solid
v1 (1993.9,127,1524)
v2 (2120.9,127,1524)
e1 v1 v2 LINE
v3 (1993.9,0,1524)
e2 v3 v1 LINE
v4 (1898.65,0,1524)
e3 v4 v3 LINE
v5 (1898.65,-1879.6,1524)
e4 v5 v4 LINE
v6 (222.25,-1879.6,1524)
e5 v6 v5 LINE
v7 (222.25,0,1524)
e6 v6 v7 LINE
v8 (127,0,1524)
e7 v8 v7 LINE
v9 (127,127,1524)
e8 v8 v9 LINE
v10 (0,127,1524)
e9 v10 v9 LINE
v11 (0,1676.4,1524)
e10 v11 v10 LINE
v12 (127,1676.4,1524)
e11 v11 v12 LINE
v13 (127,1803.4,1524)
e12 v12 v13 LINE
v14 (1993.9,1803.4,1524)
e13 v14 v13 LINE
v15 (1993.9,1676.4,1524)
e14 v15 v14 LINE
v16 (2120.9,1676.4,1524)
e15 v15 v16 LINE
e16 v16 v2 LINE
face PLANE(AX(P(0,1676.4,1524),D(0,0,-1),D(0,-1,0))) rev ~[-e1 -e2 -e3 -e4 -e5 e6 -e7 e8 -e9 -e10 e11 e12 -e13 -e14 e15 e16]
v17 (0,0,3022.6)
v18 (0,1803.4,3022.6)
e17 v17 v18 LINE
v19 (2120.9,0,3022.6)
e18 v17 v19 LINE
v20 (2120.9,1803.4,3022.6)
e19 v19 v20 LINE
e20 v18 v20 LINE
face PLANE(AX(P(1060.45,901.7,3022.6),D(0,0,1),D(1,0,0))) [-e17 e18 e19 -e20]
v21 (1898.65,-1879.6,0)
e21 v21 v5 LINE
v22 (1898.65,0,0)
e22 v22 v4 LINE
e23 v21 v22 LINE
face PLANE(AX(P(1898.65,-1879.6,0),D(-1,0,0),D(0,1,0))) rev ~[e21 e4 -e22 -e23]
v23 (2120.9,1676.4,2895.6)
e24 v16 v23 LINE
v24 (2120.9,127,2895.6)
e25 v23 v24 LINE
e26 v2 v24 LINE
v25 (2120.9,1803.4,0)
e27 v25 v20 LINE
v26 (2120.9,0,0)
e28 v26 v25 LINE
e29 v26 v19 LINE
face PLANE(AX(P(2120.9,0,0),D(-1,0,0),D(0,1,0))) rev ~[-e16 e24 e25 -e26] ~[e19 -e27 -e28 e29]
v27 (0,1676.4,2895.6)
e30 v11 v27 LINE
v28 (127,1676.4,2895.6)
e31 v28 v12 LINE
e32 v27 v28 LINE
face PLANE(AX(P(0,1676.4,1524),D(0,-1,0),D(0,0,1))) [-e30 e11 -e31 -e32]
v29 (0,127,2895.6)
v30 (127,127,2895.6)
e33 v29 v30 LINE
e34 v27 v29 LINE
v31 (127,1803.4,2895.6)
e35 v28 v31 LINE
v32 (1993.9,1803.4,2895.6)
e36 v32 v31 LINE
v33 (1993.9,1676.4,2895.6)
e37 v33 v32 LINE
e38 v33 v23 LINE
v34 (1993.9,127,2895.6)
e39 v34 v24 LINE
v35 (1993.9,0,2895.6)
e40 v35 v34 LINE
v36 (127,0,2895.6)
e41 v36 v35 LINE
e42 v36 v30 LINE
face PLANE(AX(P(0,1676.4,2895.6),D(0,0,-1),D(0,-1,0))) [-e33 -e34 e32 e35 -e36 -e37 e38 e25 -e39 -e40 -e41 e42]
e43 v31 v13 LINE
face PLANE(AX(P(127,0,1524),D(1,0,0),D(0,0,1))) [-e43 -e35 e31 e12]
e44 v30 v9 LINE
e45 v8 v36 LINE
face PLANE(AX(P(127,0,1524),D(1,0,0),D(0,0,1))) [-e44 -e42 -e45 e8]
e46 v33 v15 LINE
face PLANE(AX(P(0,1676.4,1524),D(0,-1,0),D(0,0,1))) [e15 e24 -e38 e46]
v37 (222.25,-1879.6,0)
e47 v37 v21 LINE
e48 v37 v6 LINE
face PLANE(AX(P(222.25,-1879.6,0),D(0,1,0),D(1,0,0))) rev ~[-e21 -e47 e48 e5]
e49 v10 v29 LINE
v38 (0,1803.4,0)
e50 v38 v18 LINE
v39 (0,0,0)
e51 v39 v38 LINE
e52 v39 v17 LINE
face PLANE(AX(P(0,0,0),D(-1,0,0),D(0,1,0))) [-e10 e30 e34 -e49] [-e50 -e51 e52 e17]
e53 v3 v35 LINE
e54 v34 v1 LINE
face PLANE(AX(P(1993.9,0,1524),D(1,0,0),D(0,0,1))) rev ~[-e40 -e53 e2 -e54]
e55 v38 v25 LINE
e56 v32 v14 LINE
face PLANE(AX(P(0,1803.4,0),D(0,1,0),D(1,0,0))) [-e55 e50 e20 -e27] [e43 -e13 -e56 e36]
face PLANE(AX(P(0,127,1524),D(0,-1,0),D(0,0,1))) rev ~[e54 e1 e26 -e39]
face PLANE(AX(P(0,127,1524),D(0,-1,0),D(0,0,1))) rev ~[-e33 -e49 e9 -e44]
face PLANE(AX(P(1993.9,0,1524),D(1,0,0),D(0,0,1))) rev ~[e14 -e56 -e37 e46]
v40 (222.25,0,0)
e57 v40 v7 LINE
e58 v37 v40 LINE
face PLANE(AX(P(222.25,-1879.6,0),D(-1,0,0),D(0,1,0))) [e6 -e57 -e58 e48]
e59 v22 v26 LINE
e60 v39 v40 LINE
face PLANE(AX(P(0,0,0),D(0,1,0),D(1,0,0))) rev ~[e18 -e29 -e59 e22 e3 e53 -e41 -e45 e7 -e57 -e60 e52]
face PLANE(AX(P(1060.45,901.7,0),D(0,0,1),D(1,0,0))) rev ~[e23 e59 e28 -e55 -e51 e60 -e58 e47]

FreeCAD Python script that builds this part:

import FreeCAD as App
import Part
import Sketcher
from FreeCAD import Vector
Q = App.Units.Quantity

doc = App.newDocument("Part")
body = doc.addObject("PartDesign::Body", "Body")

# Sketch on XY plane
sketch1 = doc.addObject("Sketcher::SketchObject", "Sketch")
body.addObject(sketch1)
sketch1.AttachmentSupport = (doc.XY_Plane, [""])
sketch1.MapMode = "FlatFace"
sketch1.addGeometry(Part.LineSegment(Vector(0, 1803, 0), Vector(0, 0, 0)), False)
sketch1.addGeometry(Part.LineSegment(Vector(0, 0, 0), Vector(2121, 0, 0)), False)
sketch1.addGeometry(Part.LineSegment(Vector(2121, 0, 0), Vector(2121, 1803, 0)), False)
sketch1.addGeometry(Part.LineSegment(Vector(2121, 1803, 0), Vector(0, 1803, 0)), False)
sketch1.addConstraint(Sketcher.Constraint("Coincident", 0, 2, 1, 1))
sketch1.addConstraint(Sketcher.Constraint("Coincident", 1, 2, 2, 1))
sketch1.addConstraint(Sketcher.Constraint("Coincident", 2, 2, 3, 1))
sketch1.addConstraint(Sketcher.Constraint("Coincident", 3, 2, 0, 1))
sketch1.addConstraint(Sketcher.Constraint("Vertical", 0))
sketch1.addConstraint(Sketcher.Constraint("Horizontal", 1))
sketch1.addConstraint(Sketcher.Constraint("Vertical", 2))
sketch1.addConstraint(Sketcher.Constraint("Horizontal", 3))
sketch1.addConstraint(Sketcher.Constraint("Coincident", 0, 2, -1, 1))
sketch1.addConstraint(Sketcher.Constraint("DistanceY", 0, 2, 0, 1, Q("71 in")))
sketch1.addConstraint(Sketcher.Constraint("DistanceX", 1, 1, 1, 2, Q("83.5 in")))
pad1 = doc.addObject("PartDesign::Pad", "Pad")
body.addObject(pad1)
pad1.Profile = sketch1
pad1.Length = Q("119 in")

# Sketch on XY plane
sketch2 = doc.addObject("Sketcher::SketchObject", "Sketch001")
body.addObject(sketch2)
sketch2.AttachmentSupport = (doc.XY_Plane, [""])
sketch2.MapMode = "FlatFace"
sketch2.addGeometry(Part.LineSegment(Vector(222, 0, 0), Vector(222, -1880, 0)), False)
sketch2.addGeometry(Part.LineSegment(Vector(222, -1880, 0), Vector(1899, -1880, 0)), False)
sketch2.addGeometry(Part.LineSegment(Vector(1899, -1880, 0), Vector(1899, 0, 0)), False)
sketch2.addGeometry(Part.LineSegment(Vector(1899, 0, 0), Vector(222, 0, 0)), False)
sketch2.addConstraint(Sketcher.Constraint("Coincident", 0, 2, 1, 1))
sketch2.addConstraint(Sketcher.Constraint("Coincident", 1, 2, 2, 1))
sketch2.addConstraint(Sketcher.Constraint("Coincident", 2, 2, 3, 1))
sketch2.addConstraint(Sketcher.Constraint("Coincident", 3, 2, 0, 1))
sketch2.addConstraint(Sketcher.Constraint("Vertical", 0))
sketch2.addConstraint(Sketcher.Constraint("Horizontal", 1))
sketch2.addConstraint(Sketcher.Constraint("Vertical", 2))
sketch2.addConstraint(Sketcher.Constraint("Horizontal", 3))
sketch2.addConstraint(Sketcher.Constraint("PointOnObject", 2, 2, -1))
sketch2.addConstraint(Sketcher.Constraint("DistanceX", 1, 1, 1, 2, Q("66 in")))
sketch2.addConstraint(Sketcher.Constraint("DistanceY", 0, 2, 0, 1, Q("74 in")))
sketch2.addConstraint(Sketcher.Constraint("DistanceX", -1, 1, 0, 2, Q("8.75 in")))
pad2 = doc.addObject("PartDesign::Pad", "Pad001")
body.addObject(pad2)
pad2.Profile = sketch2
pad2.Length = Q("60 in")

# Sketch on XZ plane
sketch3 = doc.addObject("Sketcher::SketchObject", "Sketch002")
body.addObject(sketch3)
sketch3.AttachmentSupport = (doc.XZ_Plane, [""])
sketch3.MapMode = "FlatFace"
sketch3.addGeometry(Part.LineSegment(Vector(127, 2896, 0), Vector(127, 1524, 0)), False)
sketch3.addGeometry(Part.LineSegment(Vector(127, 1524, 0), Vector(1994, 1524, 0)), False)
sketch3.addGeometry(Part.LineSegment(Vector(1994, 1524, 0), Vector(1994, 2896, 0)), False)
sketch3.addGeometry(Part.LineSegment(Vector(1994, 2896, 0), Vector(127, 2896, 0)), False)
sketch3.addConstraint(Sketcher.Constraint("Coincident", 0, 2, 1, 1))
sketch3.addConstraint(Sketcher.Constraint("Coincident", 1, 2, 2, 1))
sketch3.addConstraint(Sketcher.Constraint("Coincident", 2, 2, 3, 1))
sketch3.addConstraint(Sketcher.Constraint("Coincident", 3, 2, 0, 1))
sketch3.addConstraint(Sketcher.Constraint("Vertical", 0))
sketch3.addConstraint(Sketcher.Constraint("Horizontal", 1))
sketch3.addConstraint(Sketcher.Constraint("Vertical", 2))
sketch3.addConstraint(Sketcher.Constraint("Horizontal", 3))
sketch3.addConstraint(Sketcher.Constraint("DistanceY", 0, 2, 0, 1, Q("54 in")))
sketch3.addConstraint(Sketcher.Constraint("DistanceX", 1, 1, 1, 2, Q("73.5 in")))
sketch3.addConstraint(Sketcher.Constraint("DistanceX", -1, 1, 0, 2, Q("5 in")))
sketch3.addConstraint(Sketcher.Constraint("DistanceY", -1, 1, 0, 2, Q("60 in")))
pocket1 = doc.addObject("PartDesign::Pocket", "Pocket")
body.addObject(pocket1)
pocket1.Profile = sketch3
pocket1.Type = "ThroughAll"

# Sketch on YZ plane
sketch4 = doc.addObject("Sketcher::SketchObject", "Sketch003")
body.addObject(sketch4)
sketch4.AttachmentSupport = (doc.YZ_Plane, [""])
sketch4.MapMode = "FlatFace"
sketch4.addGeometry(Part.LineSegment(Vector(1676, 2896, 0), Vector(1676, 1524, 0)), False)
sketch4.addGeometry(Part.LineSegment(Vector(1676, 1524, 0), Vector(127, 1524, 0)), False)
sketch4.addGeometry(Part.LineSegment(Vector(127, 1524, 0), Vector(127, 2896, 0)), False)
sketch4.addGeometry(Part.LineSegment(Vector(127, 2896, 0), Vector(1676, 2896, 0)), False)
sketch4.addConstraint(Sketcher.Constraint("Coincident", 0, 2, 1, 1))
sketch4.addConstraint(Sketcher.Constraint("Coincident", 1, 2, 2, 1))
sketch4.addConstraint(Sketcher.Constraint("Coincident", 2, 2, 3, 1))
sketch4.addConstraint(Sketcher.Constraint("Coincident", 3, 2, 0, 1))
sketch4.addConstraint(Sketcher.Constraint("Vertical", 0))
sketch4.addConstraint(Sketcher.Constraint("Horizontal", 1))
sketch4.addConstraint(Sketcher.Constraint("Vertical", 2))
sketch4.addConstraint(Sketcher.Constraint("Horizontal", 3))
sketch4.addConstraint(Sketcher.Constraint("DistanceX", 1, 2, 1, 1, Q("61 in")))
sketch4.addConstraint(Sketcher.Constraint("DistanceY", 0, 2, 0, 1, Q("54 in")))
sketch4.addConstraint(Sketcher.Constraint("DistanceX", -1, 1, 0, 2, Q("66 in")))
sketch4.addConstraint(Sketcher.Constraint("DistanceY", -1, 1, 0, 2, Q("60 in")))
pocket2 = doc.addObject("PartDesign::Pocket", "Pocket001")
body.addObject(pocket2)
pocket2.Profile = sketch4
pocket2.Type = "ThroughAll"
pocket2.Reversed = True

doc.recompute()
